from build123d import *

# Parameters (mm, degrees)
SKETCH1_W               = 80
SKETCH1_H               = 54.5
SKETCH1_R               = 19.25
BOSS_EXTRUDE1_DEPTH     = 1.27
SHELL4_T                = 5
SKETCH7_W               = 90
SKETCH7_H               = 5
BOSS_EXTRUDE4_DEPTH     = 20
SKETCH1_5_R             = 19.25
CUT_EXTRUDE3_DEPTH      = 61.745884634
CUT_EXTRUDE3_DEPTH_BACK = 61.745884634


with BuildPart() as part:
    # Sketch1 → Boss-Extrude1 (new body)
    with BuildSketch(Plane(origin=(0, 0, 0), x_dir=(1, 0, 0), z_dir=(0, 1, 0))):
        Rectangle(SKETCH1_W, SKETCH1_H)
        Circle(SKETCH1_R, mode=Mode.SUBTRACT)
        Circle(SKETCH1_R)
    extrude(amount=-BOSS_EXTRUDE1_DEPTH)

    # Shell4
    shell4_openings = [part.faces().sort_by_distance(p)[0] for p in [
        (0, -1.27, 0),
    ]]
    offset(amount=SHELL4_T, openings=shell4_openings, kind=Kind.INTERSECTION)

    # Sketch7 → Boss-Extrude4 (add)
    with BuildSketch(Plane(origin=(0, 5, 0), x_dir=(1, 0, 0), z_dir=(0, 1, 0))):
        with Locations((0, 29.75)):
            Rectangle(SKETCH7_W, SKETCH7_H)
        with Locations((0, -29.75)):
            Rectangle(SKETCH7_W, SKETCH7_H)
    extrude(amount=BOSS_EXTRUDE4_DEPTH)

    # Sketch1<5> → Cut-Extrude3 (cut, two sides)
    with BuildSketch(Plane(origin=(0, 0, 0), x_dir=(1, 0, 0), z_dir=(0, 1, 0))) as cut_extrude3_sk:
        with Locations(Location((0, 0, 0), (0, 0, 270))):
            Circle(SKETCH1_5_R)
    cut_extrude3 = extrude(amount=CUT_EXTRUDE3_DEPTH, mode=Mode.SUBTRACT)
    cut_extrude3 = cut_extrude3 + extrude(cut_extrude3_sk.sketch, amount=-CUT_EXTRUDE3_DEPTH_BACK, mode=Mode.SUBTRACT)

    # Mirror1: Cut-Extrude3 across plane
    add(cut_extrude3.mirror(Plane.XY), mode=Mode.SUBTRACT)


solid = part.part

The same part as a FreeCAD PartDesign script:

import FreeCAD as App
import Part
import Sketcher
from FreeCAD import Vector


def faces_at(feature, points):
    """Names of the faces that lie closest to the given points."""
    faces = feature.Shape.Faces
    near = lambda p: min(range(len(faces)), key=lambda i: faces[i].distToShape(Part.Vertex(*p))[0])
    return sorted({f"Face{near(p) + 1}" for p in points})

doc = App.newDocument("Part")
body = doc.addObject("PartDesign::Body", "Body")

# Sketch on XZ plane
sketch1 = doc.addObject("Sketcher::SketchObject", "Sketch")
body.addObject(sketch1)
sketch1.AttachmentSupport = (doc.XZ_Plane, [""])
sketch1.MapMode = "FlatFace"
sketch1.addGeometry(Part.LineSegment(Vector(-40, -27, 0), Vector(-40, 27, 0)), False)
sketch1.addGeometry(Part.LineSegment(Vector(-40, 27, 0), Vector(40, 27, 0)), False)
sketch1.addGeometry(Part.LineSegment(Vector(40, 27, 0), Vector(40, -27, 0)), False)
sketch1.addGeometry(Part.LineSegment(Vector(40, -27, 0), Vector(-40, -27, 0)), False)
sketch1.addConstraint(Sketcher.Constraint("Coincident", 0, 2, 1, 1))
sketch1.addConstraint(Sketcher.Constraint("Coincident", 1, 2, 2, 1))
sketch1.addConstraint(Sketcher.Constraint("Coincident", 2, 2, 3, 1))
sketch1.addConstraint(Sketcher.Constraint("Coincident", 3, 2, 0, 1))
sketch1.addConstraint(Sketcher.Constraint("Vertical", 0))
sketch1.addConstraint(Sketcher.Constraint("Horizontal", 1))
sketch1.addConstraint(Sketcher.Constraint("Vertical", 2))
sketch1.addConstraint(Sketcher.Constraint("Horizontal", 3))
sketch1.addConstraint(Sketcher.Constraint("Symmetric", 0, 2, 2, 2, -1, 1))
sketch1.addConstraint(Sketcher.Constraint("DistanceX", 1, 1, 1, 2, 80.0))
sketch1.addConstraint(Sketcher.Constraint("DistanceY", 0, 1, 0, 2, 54.5))
pad1 = doc.addObject("PartDesign::Pad", "Pad")
body.addObject(pad1)
pad1.Profile = sketch1
pad1.Length = 1.27
doc.recompute()

thickness = doc.addObject("PartDesign::Thickness", "Thickness")
body.addObject(thickness)
thickness.Base = (pad1, faces_at(pad1, [(0, -1.27, 0)]))
thickness.Value = 5
thickness.Reversed = False
thickness.Join = "Intersection"

# Sketch on XZ plane
sketch2 = doc.addObject("Sketcher::SketchObject", "Sketch001")
body.addObject(sketch2)
sketch2.AttachmentSupport = (doc.XZ_Plane, [""])
sketch2.MapMode = "FlatFace"
sketch2.AttachmentOffset = App.Placement(Vector(0, 0, -5), App.Rotation())
sketch2.addGeometry(Part.LineSegment(Vector(-45, -32, 0), Vector(-45, -27, 0)), False)
sketch2.addGeometry(Part.LineSegment(Vector(-45, -27, 0), Vector(45, -27, 0)), False)
sketch2.addGeometry(Part.LineSegment(Vector(45, -27, 0), Vector(45, -32, 0)), False)
sketch2.addGeometry(Part.LineSegment(Vector(45, -32, 0), Vector(-45, -32, 0)), False)
sketch2.addGeometry(Part.LineSegment(Vector(-45, 27, 0), Vector(-45, 32, 0)), False)
sketch2.addGeometry(Part.LineSegment(Vector(-45, 32, 0), Vector(45, 32, 0)), False)
sketch2.addGeometry(Part.LineSegment(Vector(45, 32, 0), Vector(45, 27, 0)), False)
sketch2.addGeometry(Part.LineSegment(Vector(45, 27, 0), Vector(-45, 27, 0)), False)
sketch2.addConstraint(Sketcher.Constraint("Coincident", 0, 2, 1, 1))
sketch2.addConstraint(Sketcher.Constraint("Coincident", 1, 2, 2, 1))
sketch2.addConstraint(Sketcher.Constraint("Coincident", 2, 2, 3, 1))
sketch2.addConstraint(Sketcher.Constraint("Coincident", 3, 2, 0, 1))
sketch2.addConstraint(Sketcher.Constraint("Coincident", 4, 2, 5, 1))
sketch2.addConstraint(Sketcher.Constraint("Coincident", 5, 2, 6, 1))
sketch2.addConstraint(Sketcher.Constraint("Coincident", 6, 2, 7, 1))
sketch2.addConstraint(Sketcher.Constraint("Coincident", 7, 2, 4, 1))
sketch2.addConstraint(Sketcher.Constraint("Vertical", 0))
sketch2.addConstraint(Sketcher.Constraint("Horizontal", 1))
sketch2.addConstraint(Sketcher.Constraint("Vertical", 2))
sketch2.addConstraint(Sketcher.Constraint("Horizontal", 3))
sketch2.addConstraint(Sketcher.Constraint("Vertical", 4))
sketch2.addConstraint(Sketcher.Constraint("Horizontal", 5))
sketch2.addConstraint(Sketcher.Constraint("Vertical", 6))
sketch2.addConstraint(Sketcher.Constraint("Horizontal", 7))
sketch2.addConstraint(Sketcher.Constraint("Symmetric", 2, 2, 4, 2, -1, 1))
sketch2.addConstraint(Sketcher.Constraint("Symmetric", 0, 2, 6, 2, -1, 1))
sketch2.addConstraint(Sketcher.Constraint("Vertical", 3, 2, 4, 2))
sketch2.addConstraint(Sketcher.Constraint("DistanceX", 1, 1, 1, 2, 90.0))
sketch2.addConstraint(Sketcher.Constraint("DistanceY", 0, 1, 0, 2, 5.0))
sketch2.addConstraint(Sketcher.Constraint("DistanceY", 0, 2, 4, 2, 59.5))
pad2 = doc.addObject("PartDesign::Pad", "Pad001")
body.addObject(pad2)
pad2.Profile = sketch2
pad2.Length = 20
pad2.Reversed = True

# Sketch on XZ plane
sketch3 = doc.addObject("Sketcher::SketchObject", "Sketch002")
body.addObject(sketch3)
sketch3.AttachmentSupport = (doc.XZ_Plane, [""])
sketch3.MapMode = "FlatFace"
sketch3.addGeometry(Part.Circle(Vector(0, 0, 0), Vector(0, 0, 1), 19), False)
sketch3.addConstraint(Sketcher.Constraint("Coincident", 0, 3, -1, 1))
sketch3.addConstraint(Sketcher.Constraint("Diameter", 0, 38.5))
pocket1 = doc.addObject("PartDesign::Pocket", "Pocket")
body.addObject(pocket1)
pocket1.Profile = sketch3
pocket1.Type = "ThroughAll"
pocket1.Midplane = True
doc.recompute()

mirrored = doc.addObject("PartDesign::Mirrored", "Mirrored")
body.addObject(mirrored)
mirrored.Originals = [pocket1]
mirrored.MirrorPlane = (doc.XY_Plane, [""])
body.Tip = mirrored

doc.recompute()
